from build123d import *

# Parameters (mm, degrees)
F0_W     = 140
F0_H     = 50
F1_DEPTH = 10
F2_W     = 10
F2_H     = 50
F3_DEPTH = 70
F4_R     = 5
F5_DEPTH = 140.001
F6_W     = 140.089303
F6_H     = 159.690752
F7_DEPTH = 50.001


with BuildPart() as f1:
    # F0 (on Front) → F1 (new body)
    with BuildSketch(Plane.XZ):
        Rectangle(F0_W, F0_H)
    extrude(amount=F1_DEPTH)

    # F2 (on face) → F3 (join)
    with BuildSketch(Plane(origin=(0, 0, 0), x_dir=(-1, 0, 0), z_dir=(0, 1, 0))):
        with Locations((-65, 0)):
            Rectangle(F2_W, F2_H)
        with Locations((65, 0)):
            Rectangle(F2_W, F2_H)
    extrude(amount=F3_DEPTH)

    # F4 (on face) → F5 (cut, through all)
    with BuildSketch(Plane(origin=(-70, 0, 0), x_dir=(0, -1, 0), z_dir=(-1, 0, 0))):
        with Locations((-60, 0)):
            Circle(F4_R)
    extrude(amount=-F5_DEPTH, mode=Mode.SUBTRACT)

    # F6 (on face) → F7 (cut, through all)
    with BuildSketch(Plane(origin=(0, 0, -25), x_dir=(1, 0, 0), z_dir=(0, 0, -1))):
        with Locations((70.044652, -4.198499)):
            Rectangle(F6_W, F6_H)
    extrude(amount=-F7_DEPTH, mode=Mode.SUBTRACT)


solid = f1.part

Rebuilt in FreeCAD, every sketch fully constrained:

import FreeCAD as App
import Part
import Sketcher

V = App.Vector
Q = App.Units.Quantity

doc = App.newDocument("Part")
params = doc.addObject("Spreadsheet::Sheet", "Params")
for row, (alias, value) in enumerate([
    ("sketch1_width", "140 mm"),
    ("sketch1_height", "50 mm"),
    ("pad1_length", "10 mm"),
    ("sketch2_width", "10 mm"),
    ("sketch2_height", "50 mm"),
    ("pad2_length", "70 mm"),
    ("sketch3_diameter", "10 mm"),
], start=1):
    params.set(f"A{row}", alias)
    params.set(f"B{row}", "=" + value)
    params.setAlias(f"B{row}", alias)

body = doc.addObject("PartDesign::Body", "Body")

sketch1 = body.newObject("Sketcher::SketchObject", "Sketch")
sketch1.AttachmentSupport = (doc.getObject("XZ_Plane"), [""])
sketch1.MapMode = "FlatFace"
sketch1.addGeometry([
    Part.LineSegment(V(-70, 25, 0), V(-70, -25, 0)),
    Part.LineSegment(V(-70, -25, 0), V(70, -25, 0)),
    Part.LineSegment(V(70, -25, 0), V(70, 25, 0)),
    Part.LineSegment(V(70, 25, 0), V(-70, 25, 0)),
], False)
sketch1.addConstraint([
    Sketcher.Constraint("Coincident", 0, 2, 1, 1),
    Sketcher.Constraint("Coincident", 1, 2, 2, 1),
    Sketcher.Constraint("Coincident", 2, 2, 3, 1),
    Sketcher.Constraint("Coincident", 3, 2, 0, 1),
    Sketcher.Constraint("Vertical", 0),
    Sketcher.Constraint("Horizontal", 1),
    Sketcher.Constraint("Vertical", 2),
    Sketcher.Constraint("Horizontal", 3),
    Sketcher.Constraint("Symmetric", 0, 2, 2, 2, -1, 1),
    Sketcher.Constraint("DistanceX", 1, 1, 1, 2, Q("140 mm")),
    Sketcher.Constraint("DistanceY", 0, 2, 0, 1, Q("50 mm")),
])
sketch1.setExpression("Constraints[9]", "Params.sketch1_width")
sketch1.setExpression("Constraints[10]", "Params.sketch1_height")
pad1 = body.newObject("PartDesign::Pad", "Pad")
pad1.Profile = sketch1
pad1.setExpression("Length", "Params.pad1_length")

sketch2 = body.newObject("Sketcher::SketchObject", "Sketch001")
sketch2.AttachmentSupport = (doc.getObject("XZ_Plane"), [""])
sketch2.MapMode = "FlatFace"
sketch2.addGeometry([
    Part.LineSegment(V(70, 25, 0), V(70, -25, 0)),
    Part.LineSegment(V(70, -25, 0), V(60, -25, 0)),
    Part.LineSegment(V(60, -25, 0), V(60, 25, 0)),
    Part.LineSegment(V(60, 25, 0), V(70, 25, 0)),
    Part.LineSegment(V(-60, 25, 0), V(-60, -25, 0)),
    Part.LineSegment(V(-60, -25, 0), V(-70, -25, 0)),
    Part.LineSegment(V(-70, -25, 0), V(-70, 25, 0)),
    Part.LineSegment(V(-70, 25, 0), V(-60, 25, 0)),
], False)
sketch2.addConstraint([
    Sketcher.Constraint("Coincident", 0, 2, 1, 1),
    Sketcher.Constraint("Coincident", 1, 2, 2, 1),
    Sketcher.Constraint("Coincident", 2, 2, 3, 1),
    Sketcher.Constraint("Coincident", 3, 2, 0, 1),
    Sketcher.Constraint("Coincident", 4, 2, 5, 1),
    Sketcher.Constraint("Coincident", 5, 2, 6, 1),
    Sketcher.Constraint("Coincident", 6, 2, 7, 1),
    Sketcher.Constraint("Coincident", 7, 2, 4, 1),
    Sketcher.Constraint("Vertical", 0),
    Sketcher.Constraint("Horizontal", 1),
    Sketcher.Constraint("Vertical", 2),
    Sketcher.Constraint("Horizontal", 3),
    Sketcher.Constraint("Vertical", 4),
    Sketcher.Constraint("Horizontal", 5),
    Sketcher.Constraint("Vertical", 6),
    Sketcher.Constraint("Horizontal", 7),
    Sketcher.Constraint("Symmetric", 2, 2, 4, 2, -1, 1),
    Sketcher.Constraint("Symmetric", 0, 2, 6, 2, -1, 1),
    Sketcher.Constraint("Horizontal", 1, 2, 4, 2),
    Sketcher.Constraint("DistanceX", 1, 2, 1, 1, Q("10 mm")),
    Sketcher.Constraint("DistanceY", 0, 2, 0, 1, Q("50 mm")),
    Sketcher.Constraint("DistanceX", -1, 1, 0, 2, Q("70 mm")),
])
sketch2.setExpression("Constraints[19]", "Params.sketch2_width")
sketch2.setExpression("Constraints[20]", "Params.sketch2_height")
pad2 = body.newObject("PartDesign::Pad", "Pad001")
pad2.Profile = sketch2
pad2.setExpression("Length", "Params.pad2_length")
pad2.Reversed = True

sketch3 = body.newObject("Sketcher::SketchObject", "Sketch002")
sketch3.AttachmentSupport = (doc.getObject("YZ_Plane"), [""])
sketch3.MapMode = "FlatFace"
sketch3.AttachmentOffset = App.Placement(V(0, 0, -70), App.Rotation())
sketch3.addGeometry(Part.Circle(V(60, 0, 0), V(0, 0, 1), 5), False)
sketch3.addConstraint([
    Sketcher.Constraint("PointOnObject", 0, 3, -1),
    Sketcher.Constraint("Diameter", 0, Q("10 mm")),
    Sketcher.Constraint("DistanceX", -1, 1, 0, 3, Q("60 mm")),
])
sketch3.setExpression("Constraints[1]", "Params.sketch3_diameter")
pocket1 = body.newObject("PartDesign::Pocket", "Pocket")
pocket1.Profile = sketch3
pocket1.Type = "ThroughAll"
pocket1.Reversed = True

sketch4 = body.newObject("Sketcher::SketchObject", "Sketch003")
sketch4.AttachmentSupport = (doc.getObject("XY_Plane"), [""])
sketch4.MapMode = "FlatFace"
sketch4.AttachmentOffset = App.Placement(V(0, 0, -25), App.Rotation())
sketch4.addGeometry([
    Part.LineSegment(V(0, -76, 0), V(0, 84, 0)),
    Part.LineSegment(V(0, 84, 0), V(140, 84, 0)),
    Part.LineSegment(V(140, 84, 0), V(140, -76, 0)),
    Part.LineSegment(V(140, -76, 0), V(0, -76, 0)),
], False)
sketch4.addConstraint([
    Sketcher.Constraint("Coincident", 0, 2, 1, 1),
    Sketcher.Constraint("Coincident", 1, 2, 2, 1),
    Sketcher.Constraint("Coincident", 2, 2, 3, 1),
    Sketcher.Constraint("Coincident", 3, 2, 0, 1),
    Sketcher.Constraint("Vertical", 0),
    Sketcher.Constraint("Horizontal", 1),
    Sketcher.Constraint("Vertical", 2),
    Sketcher.Constraint("Horizontal", 3),
    Sketcher.Constraint("PointOnObject", 0, 2, -2),
    Sketcher.Constraint("DistanceY", 0, 1, 0, 2, Q("159.690752 mm")),
    Sketcher.Constraint("DistanceX", 1, 1, 1, 2, Q("140.089303 mm")),
    Sketcher.Constraint("DistanceY", -1, 1, 0, 2, Q("84.043875 mm")),
])
pocket2 = body.newObject("PartDesign::Pocket", "Pocket001")
pocket2.Profile = sketch4
pocket2.Type = "ThroughAll"
pocket2.Reversed = True

doc.recompute()
